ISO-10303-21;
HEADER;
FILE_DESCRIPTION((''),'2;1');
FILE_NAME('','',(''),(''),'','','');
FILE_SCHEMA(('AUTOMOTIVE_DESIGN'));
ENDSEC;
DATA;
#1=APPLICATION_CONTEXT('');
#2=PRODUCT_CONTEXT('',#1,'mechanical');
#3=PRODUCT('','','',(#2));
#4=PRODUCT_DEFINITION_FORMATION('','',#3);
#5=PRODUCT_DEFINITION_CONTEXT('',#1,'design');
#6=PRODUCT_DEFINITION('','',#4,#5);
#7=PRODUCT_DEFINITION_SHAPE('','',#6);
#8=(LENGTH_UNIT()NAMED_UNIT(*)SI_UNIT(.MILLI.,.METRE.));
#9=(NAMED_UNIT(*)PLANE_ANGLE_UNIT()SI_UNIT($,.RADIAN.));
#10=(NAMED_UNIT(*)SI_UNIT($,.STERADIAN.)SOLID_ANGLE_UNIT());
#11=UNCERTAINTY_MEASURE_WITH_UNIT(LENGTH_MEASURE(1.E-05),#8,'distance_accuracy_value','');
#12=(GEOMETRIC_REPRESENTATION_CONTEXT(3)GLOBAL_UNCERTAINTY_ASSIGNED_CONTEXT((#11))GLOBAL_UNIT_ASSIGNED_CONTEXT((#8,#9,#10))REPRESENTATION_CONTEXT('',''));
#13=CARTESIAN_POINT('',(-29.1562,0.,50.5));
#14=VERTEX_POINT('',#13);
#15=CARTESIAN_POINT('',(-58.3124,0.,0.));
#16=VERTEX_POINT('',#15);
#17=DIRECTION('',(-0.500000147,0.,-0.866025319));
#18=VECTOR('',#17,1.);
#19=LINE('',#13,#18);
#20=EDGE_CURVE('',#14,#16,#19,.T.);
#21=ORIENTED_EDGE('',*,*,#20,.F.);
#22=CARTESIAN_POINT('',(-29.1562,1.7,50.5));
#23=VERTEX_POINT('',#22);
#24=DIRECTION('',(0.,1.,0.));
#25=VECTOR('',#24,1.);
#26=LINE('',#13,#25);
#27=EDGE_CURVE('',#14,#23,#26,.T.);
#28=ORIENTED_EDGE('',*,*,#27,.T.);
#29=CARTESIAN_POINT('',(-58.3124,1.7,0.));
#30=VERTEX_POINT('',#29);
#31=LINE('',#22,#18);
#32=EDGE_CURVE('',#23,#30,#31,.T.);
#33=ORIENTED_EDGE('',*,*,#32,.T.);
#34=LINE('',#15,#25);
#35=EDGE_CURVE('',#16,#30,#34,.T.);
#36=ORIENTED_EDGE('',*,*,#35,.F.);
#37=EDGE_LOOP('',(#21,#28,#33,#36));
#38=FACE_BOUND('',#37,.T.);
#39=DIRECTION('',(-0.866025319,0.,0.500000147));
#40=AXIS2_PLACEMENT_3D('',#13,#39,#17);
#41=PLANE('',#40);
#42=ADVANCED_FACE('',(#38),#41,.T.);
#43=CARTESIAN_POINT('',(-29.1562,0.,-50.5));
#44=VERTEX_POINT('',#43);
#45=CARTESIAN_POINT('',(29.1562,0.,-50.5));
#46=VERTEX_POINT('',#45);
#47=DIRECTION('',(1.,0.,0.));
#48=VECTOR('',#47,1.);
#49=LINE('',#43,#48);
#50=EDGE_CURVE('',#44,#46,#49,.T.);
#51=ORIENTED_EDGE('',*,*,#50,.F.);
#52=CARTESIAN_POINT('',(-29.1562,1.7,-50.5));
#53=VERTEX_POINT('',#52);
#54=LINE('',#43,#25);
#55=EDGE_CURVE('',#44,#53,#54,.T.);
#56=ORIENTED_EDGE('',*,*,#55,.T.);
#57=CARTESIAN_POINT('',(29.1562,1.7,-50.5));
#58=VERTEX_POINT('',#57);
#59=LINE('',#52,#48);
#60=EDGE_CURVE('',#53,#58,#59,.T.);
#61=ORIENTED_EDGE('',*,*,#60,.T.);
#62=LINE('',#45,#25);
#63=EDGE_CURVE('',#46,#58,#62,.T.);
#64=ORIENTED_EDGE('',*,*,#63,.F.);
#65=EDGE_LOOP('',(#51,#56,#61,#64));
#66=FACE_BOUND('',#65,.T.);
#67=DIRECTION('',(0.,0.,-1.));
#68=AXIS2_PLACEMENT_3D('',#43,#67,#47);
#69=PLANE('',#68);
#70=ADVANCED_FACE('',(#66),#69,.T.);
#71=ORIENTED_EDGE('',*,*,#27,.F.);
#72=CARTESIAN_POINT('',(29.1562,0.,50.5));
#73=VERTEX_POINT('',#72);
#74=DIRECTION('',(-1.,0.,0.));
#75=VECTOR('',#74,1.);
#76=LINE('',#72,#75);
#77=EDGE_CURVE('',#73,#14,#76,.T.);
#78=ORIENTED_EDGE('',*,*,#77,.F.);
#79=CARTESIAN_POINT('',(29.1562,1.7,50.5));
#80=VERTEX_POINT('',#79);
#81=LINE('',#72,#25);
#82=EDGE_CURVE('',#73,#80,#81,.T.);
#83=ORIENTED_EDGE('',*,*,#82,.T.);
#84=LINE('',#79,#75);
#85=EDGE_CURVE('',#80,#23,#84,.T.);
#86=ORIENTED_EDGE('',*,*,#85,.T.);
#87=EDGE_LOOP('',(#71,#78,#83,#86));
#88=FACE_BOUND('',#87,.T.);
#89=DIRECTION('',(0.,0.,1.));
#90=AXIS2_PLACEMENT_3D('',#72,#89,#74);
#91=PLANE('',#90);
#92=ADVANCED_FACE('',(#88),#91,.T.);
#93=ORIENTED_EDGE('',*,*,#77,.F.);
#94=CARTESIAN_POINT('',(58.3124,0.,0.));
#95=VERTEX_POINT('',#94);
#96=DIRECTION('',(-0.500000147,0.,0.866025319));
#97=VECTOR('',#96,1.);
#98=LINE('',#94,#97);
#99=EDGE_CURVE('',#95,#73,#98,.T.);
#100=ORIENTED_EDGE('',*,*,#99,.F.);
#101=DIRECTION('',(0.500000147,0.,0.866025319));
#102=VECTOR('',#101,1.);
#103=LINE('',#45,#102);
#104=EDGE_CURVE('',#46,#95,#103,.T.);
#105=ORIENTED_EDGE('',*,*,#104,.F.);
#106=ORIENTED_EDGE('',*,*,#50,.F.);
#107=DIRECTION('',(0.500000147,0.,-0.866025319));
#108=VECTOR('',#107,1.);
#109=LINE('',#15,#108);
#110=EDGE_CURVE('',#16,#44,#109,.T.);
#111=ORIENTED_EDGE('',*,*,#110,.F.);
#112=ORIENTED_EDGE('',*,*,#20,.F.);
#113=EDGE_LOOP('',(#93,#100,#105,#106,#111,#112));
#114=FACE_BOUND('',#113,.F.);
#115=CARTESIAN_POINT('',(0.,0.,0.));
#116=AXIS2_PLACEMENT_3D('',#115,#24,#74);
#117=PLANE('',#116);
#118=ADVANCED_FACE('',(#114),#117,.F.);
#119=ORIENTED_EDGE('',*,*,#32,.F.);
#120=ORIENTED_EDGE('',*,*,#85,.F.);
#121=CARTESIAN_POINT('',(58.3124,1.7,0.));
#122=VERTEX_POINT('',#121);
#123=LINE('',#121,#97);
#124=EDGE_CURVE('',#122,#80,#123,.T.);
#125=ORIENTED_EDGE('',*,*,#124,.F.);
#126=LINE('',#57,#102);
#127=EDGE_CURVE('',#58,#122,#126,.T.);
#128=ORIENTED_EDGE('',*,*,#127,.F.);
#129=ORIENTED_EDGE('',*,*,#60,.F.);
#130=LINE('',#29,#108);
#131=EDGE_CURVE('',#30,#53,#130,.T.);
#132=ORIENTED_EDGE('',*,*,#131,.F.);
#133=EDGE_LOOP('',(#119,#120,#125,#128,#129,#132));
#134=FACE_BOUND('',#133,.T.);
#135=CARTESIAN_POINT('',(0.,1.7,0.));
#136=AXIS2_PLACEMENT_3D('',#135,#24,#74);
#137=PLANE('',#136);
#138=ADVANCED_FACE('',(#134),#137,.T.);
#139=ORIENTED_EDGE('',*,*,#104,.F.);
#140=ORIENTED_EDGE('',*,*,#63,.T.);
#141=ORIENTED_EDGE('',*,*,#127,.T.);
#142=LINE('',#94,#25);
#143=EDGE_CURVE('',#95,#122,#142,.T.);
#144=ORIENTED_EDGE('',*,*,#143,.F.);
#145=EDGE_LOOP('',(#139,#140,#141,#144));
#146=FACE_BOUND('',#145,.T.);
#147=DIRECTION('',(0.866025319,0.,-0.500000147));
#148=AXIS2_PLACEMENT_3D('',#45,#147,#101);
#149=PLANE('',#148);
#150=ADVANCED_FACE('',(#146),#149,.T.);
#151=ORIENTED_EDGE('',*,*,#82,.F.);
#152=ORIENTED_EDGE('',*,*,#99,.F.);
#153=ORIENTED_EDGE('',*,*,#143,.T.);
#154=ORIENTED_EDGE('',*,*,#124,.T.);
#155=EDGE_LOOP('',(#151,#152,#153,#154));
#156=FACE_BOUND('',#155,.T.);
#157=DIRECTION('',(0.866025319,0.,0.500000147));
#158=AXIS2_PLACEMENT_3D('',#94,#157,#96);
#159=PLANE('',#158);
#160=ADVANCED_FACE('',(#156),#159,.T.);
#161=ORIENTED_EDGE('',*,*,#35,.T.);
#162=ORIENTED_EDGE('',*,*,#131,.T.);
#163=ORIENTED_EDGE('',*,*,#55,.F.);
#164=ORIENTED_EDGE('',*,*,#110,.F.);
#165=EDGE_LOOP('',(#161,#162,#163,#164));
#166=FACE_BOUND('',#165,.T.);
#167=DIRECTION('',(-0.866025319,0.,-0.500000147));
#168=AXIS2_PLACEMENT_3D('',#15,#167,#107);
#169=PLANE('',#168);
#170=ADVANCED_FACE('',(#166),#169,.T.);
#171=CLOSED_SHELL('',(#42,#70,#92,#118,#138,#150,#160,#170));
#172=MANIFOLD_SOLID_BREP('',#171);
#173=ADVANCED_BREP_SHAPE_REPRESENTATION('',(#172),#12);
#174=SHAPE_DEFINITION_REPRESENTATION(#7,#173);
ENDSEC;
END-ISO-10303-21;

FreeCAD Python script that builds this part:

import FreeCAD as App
import Part
import Sketcher
Q = App.Units.Quantity


def add_polygon(sketch, points):
    """Adds a closed chain of lines whose ends are joined by coincident constraints."""
    first, n = sketch.GeometryCount, len(points)
    for a, b in zip(points, points[1:] + points[:1]):
        sketch.addGeometry(Part.LineSegment(App.Vector(*a, 0), App.Vector(*b, 0)), False)
    for i in range(n):
        sketch.addConstraint(Sketcher.Constraint("Coincident", first + i, 2, first + (i + 1) % n, 1))

doc = App.newDocument("Part")
body = doc.addObject("PartDesign::Body", "Body")

# Sketch on XZ plane
sketch1 = body.newObject("Sketcher::SketchObject", "Sketch")
sketch1.AttachmentSupport = (doc.getObject("XZ_Plane"), [""])
sketch1.MapMode = "FlatFace"
add_polygon(sketch1, [(58, 0), (29, -50), (-29, -50), (-58, 0), (-29, 50), (29, 50)])  # lines 0-5
sketch1.addConstraint([
    Sketcher.Constraint("Horizontal", 1),
    Sketcher.Constraint("Horizontal", 4),
    Sketcher.Constraint("Symmetric", 0, 2, 3, 2, -1, 1),
    Sketcher.Constraint("Symmetric", 2, 2, 5, 2, -1, 1),
    Sketcher.Constraint("PointOnObject", 2, 2, -1),
    Sketcher.Constraint("Parallel", 2, 5),
    Sketcher.Constraint("Vertical", 1, 2, 3, 2),
    Sketcher.Constraint("DistanceY", 1, 2, 3, 2, Q("101 mm")),
    Sketcher.Constraint("Angle", 0, Q("-120 deg")),
    Sketcher.Constraint("DistanceX", 1, 2, 1, 1, Q("58.3124 mm")),
])
pad1 = body.newObject("PartDesign::Pad", "Pad")
pad1.Profile = sketch1
pad1.Length = 1.7
pad1.Reversed = True

doc.recompute()
